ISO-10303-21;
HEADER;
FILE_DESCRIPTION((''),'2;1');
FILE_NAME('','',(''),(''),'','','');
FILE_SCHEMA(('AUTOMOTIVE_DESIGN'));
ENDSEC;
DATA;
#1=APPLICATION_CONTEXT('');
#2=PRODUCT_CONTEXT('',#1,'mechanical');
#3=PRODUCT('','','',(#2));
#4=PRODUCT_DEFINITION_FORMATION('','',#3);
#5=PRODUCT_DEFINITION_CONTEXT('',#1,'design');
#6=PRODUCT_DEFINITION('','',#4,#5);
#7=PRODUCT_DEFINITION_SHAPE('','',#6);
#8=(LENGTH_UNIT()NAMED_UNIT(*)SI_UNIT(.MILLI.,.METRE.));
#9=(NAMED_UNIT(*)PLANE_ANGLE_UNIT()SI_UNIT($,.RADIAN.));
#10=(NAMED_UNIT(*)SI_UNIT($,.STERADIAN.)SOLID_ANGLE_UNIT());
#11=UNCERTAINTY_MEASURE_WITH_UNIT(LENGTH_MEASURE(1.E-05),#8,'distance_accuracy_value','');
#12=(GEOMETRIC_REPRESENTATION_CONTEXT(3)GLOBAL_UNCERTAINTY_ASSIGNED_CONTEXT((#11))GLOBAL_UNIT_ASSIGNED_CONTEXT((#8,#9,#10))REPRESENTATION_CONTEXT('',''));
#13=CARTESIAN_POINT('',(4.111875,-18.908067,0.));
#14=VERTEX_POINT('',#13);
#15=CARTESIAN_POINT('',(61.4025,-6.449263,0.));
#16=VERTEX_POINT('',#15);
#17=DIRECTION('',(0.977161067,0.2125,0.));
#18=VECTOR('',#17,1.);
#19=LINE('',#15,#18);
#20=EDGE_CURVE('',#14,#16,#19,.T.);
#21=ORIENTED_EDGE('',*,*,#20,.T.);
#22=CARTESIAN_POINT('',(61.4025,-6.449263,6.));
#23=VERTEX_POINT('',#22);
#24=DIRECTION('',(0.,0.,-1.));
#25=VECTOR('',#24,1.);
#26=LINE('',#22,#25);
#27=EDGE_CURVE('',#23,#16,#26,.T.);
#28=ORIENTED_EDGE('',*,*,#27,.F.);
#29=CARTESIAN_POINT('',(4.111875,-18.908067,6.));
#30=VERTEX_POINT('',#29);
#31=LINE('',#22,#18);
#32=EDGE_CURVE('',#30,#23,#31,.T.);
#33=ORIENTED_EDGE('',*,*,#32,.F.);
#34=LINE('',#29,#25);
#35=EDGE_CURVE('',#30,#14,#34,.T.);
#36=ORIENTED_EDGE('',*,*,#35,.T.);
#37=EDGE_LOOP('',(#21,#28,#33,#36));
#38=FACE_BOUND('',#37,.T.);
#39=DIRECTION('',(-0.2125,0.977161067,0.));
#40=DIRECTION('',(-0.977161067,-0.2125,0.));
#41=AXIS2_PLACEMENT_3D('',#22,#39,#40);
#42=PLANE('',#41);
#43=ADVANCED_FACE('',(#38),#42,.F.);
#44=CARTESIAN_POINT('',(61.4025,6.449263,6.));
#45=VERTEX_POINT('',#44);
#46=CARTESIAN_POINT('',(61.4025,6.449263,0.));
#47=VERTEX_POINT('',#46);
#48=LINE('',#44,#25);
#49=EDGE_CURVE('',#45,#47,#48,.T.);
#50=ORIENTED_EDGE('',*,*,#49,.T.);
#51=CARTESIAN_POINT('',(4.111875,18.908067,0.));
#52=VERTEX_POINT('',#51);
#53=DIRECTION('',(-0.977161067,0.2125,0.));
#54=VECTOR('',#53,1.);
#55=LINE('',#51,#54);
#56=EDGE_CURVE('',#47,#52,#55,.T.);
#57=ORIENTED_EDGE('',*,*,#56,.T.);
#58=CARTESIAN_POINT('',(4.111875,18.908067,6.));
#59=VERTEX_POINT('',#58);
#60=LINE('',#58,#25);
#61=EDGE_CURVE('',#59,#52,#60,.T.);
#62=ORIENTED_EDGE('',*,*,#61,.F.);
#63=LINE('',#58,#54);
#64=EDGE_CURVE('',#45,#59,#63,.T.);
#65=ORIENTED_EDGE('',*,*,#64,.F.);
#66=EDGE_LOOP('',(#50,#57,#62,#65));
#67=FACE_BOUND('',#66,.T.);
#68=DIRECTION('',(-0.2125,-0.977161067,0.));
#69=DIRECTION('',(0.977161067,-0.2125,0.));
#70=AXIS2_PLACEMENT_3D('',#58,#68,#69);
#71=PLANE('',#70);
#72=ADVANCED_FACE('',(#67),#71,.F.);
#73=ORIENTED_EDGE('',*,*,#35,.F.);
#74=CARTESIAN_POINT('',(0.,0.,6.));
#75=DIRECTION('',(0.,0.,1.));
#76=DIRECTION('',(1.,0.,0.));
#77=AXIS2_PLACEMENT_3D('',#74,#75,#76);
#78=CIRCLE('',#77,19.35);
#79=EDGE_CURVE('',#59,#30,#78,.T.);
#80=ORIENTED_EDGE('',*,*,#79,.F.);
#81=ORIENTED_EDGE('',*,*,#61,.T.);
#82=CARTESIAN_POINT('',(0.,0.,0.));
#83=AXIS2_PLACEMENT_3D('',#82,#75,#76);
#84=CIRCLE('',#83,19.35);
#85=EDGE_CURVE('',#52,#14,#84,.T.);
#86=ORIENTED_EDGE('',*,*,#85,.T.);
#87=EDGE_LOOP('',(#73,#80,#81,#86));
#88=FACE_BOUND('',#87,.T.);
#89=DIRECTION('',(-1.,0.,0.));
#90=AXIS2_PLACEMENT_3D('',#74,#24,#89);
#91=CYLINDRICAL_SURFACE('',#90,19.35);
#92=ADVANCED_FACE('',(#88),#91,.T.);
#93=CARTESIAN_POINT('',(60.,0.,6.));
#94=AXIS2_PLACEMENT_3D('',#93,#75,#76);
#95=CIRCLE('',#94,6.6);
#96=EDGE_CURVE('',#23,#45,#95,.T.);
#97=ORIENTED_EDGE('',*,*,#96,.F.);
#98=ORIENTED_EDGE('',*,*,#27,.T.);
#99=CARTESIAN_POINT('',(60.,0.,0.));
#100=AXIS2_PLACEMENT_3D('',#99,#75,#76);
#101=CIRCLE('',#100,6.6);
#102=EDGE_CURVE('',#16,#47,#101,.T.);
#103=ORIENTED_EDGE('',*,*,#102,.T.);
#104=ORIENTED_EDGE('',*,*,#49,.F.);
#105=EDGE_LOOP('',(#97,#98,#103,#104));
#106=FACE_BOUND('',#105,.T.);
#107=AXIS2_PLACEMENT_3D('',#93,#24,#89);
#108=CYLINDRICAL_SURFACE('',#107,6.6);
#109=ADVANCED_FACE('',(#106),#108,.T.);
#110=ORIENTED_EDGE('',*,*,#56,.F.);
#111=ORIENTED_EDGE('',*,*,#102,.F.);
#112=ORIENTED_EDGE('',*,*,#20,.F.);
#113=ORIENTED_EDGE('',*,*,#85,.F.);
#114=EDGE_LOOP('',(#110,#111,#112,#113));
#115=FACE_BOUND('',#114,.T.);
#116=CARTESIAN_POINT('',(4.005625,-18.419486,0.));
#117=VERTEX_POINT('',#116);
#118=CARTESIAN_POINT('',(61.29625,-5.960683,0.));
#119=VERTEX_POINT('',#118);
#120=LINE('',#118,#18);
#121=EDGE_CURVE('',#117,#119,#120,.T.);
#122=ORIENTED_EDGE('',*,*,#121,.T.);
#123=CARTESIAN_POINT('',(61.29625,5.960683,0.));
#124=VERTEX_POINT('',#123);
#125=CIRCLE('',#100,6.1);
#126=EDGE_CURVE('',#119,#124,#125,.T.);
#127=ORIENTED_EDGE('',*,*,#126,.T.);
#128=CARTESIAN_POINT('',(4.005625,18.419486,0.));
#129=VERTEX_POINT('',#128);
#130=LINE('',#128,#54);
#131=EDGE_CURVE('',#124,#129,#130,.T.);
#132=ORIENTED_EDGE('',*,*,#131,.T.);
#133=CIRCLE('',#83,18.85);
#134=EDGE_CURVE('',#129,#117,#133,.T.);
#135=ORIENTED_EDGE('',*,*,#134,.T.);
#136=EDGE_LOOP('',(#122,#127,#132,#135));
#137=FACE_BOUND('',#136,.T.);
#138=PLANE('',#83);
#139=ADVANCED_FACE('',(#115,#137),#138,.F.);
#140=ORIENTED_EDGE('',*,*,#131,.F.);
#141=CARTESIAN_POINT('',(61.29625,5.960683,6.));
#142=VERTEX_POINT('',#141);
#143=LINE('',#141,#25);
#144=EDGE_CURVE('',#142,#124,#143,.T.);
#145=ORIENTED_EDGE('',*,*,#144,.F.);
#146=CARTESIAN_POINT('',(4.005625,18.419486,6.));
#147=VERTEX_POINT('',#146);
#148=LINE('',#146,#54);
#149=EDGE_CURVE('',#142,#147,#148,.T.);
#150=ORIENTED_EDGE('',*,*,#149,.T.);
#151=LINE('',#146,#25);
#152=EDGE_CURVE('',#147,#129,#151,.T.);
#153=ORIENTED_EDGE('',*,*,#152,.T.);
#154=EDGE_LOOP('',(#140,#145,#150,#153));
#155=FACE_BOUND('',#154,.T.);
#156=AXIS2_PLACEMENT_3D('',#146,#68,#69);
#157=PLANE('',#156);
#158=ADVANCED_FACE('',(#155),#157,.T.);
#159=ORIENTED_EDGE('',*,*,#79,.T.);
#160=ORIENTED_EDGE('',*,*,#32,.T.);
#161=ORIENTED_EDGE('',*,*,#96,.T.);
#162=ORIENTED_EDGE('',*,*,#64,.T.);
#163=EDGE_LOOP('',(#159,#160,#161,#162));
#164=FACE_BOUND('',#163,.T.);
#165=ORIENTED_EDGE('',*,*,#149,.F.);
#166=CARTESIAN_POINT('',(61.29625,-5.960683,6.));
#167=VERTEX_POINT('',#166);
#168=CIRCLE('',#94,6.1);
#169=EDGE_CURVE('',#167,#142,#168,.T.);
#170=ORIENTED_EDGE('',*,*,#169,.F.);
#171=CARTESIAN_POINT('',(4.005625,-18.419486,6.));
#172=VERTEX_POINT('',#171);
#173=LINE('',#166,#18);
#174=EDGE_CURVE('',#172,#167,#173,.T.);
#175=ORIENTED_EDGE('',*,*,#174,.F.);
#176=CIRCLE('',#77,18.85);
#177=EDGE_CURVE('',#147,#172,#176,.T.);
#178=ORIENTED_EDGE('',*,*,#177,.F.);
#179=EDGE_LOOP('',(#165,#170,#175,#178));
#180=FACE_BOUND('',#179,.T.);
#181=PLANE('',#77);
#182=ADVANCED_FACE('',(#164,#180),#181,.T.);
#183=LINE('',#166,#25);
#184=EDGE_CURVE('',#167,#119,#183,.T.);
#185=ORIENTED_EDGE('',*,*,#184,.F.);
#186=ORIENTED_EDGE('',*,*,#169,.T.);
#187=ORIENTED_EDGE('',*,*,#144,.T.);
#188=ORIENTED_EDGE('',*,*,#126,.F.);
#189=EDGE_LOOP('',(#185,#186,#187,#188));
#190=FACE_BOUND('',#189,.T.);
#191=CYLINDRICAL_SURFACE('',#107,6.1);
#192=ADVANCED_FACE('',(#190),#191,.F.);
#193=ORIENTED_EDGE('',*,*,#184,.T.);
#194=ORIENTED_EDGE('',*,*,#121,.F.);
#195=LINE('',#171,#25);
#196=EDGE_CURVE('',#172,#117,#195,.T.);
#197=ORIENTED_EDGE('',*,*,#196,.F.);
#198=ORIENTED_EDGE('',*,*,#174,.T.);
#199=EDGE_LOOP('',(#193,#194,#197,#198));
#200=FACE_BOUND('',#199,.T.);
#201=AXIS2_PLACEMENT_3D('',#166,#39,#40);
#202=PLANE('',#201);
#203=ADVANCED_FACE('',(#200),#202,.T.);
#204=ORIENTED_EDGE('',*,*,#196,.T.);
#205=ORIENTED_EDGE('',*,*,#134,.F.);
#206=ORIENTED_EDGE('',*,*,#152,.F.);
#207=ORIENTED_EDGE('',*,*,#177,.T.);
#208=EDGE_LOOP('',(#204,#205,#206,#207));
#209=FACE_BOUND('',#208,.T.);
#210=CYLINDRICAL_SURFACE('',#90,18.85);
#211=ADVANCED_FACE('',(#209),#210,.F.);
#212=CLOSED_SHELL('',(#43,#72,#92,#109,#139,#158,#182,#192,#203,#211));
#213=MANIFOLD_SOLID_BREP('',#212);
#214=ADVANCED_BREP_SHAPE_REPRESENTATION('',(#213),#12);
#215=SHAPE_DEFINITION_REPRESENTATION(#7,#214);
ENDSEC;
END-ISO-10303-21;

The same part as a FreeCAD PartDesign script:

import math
import FreeCAD as App
import Part
import Sketcher

V = App.Vector

doc = App.newDocument("Part")
params = doc.addObject("Spreadsheet::Sheet", "Params")
for row, (alias, value) in enumerate([
    ("sketch1_radius", "6.6 mm"),
    ("sketch1_radius2", "6.1 mm"),
    ("sketch1_radius3", "19.35 mm"),
    ("pad1_length", "6 mm"),
], start=1):
    params.set(f"A{row}", alias)
    params.set(f"B{row}", "=" + value)
    params.setAlias(f"B{row}", alias)

body = doc.addObject("PartDesign::Body", "Body")

sketch1 = body.newObject("Sketcher::SketchObject", "Sketch")
sketch1.AttachmentSupport = (doc.getObject("XY_Plane"), [""])
sketch1.MapMode = "FlatFace"
sketch1.addGeometry([
    Part.LineSegment(V(4, -19, 0), V(61, -6, 0)),
    Part.ArcOfCircle(Part.Circle(V(60, 0, 0), V(0, 0, 1), 7), math.radians(-78), math.radians(78)),
    Part.LineSegment(V(61, 6, 0), V(4, 19, 0)),
    Part.ArcOfCircle(Part.Circle(V(0, 0, 0), V(0, 0, 1), 19), math.radians(78), math.radians(282)),
    Part.LineSegment(V(4, 18, 0), V(61, 6, 0)),
    Part.ArcOfCircle(Part.Circle(V(60, 0, 0), V(0, 0, 1), 6), math.radians(-78), math.radians(78)),
    Part.LineSegment(V(61, -6, 0), V(4, -18, 0)),
    Part.ArcOfCircle(Part.Circle(V(0, 0, 0), V(0, 0, 1), 19), math.radians(78), math.radians(282)),
], False)
sketch1.addConstraint([
    Sketcher.Constraint("Tangent", 0, 2, 1, 1),
    Sketcher.Constraint("Tangent", 1, 2, 2, 1),
    Sketcher.Constraint("Tangent", 2, 2, 3, 1),
    Sketcher.Constraint("Tangent", 3, 2, 0, 1),
    Sketcher.Constraint("Tangent", 4, 2, 5, 2),
    Sketcher.Constraint("Tangent", 5, 1, 6, 1),
    Sketcher.Constraint("Tangent", 6, 2, 7, 2),
    Sketcher.Constraint("Tangent", 7, 1, 4, 1),
    Sketcher.Constraint("Coincident", 3, 3, -1, 1),
    Sketcher.Constraint("Coincident", 7, 3, -1, 1),
    Sketcher.Constraint("Coincident", 5, 3, 1, 3),
    Sketcher.Constraint("PointOnObject", 1, 3, -1),
    Sketcher.Constraint("Parallel", 2, 4),
    Sketcher.Constraint("Radius", 1, 6.6),
    Sketcher.Constraint("Radius", 5, 6.1),
    Sketcher.Constraint("Radius", 3, 19.35),
    Sketcher.Constraint("DistanceX", -1, 1, 1, 3, 60.0),
])
sketch1.setExpression("Constraints[13]", "Params.sketch1_radius")
sketch1.setExpression("Constraints[14]", "Params.sketch1_radius2")
sketch1.setExpression("Constraints[15]", "Params.sketch1_radius3")
pad1 = body.newObject("PartDesign::Pad", "Pad")
pad1.Profile = sketch1
pad1.setExpression("Length", "Params.pad1_length")

doc.recompute()
